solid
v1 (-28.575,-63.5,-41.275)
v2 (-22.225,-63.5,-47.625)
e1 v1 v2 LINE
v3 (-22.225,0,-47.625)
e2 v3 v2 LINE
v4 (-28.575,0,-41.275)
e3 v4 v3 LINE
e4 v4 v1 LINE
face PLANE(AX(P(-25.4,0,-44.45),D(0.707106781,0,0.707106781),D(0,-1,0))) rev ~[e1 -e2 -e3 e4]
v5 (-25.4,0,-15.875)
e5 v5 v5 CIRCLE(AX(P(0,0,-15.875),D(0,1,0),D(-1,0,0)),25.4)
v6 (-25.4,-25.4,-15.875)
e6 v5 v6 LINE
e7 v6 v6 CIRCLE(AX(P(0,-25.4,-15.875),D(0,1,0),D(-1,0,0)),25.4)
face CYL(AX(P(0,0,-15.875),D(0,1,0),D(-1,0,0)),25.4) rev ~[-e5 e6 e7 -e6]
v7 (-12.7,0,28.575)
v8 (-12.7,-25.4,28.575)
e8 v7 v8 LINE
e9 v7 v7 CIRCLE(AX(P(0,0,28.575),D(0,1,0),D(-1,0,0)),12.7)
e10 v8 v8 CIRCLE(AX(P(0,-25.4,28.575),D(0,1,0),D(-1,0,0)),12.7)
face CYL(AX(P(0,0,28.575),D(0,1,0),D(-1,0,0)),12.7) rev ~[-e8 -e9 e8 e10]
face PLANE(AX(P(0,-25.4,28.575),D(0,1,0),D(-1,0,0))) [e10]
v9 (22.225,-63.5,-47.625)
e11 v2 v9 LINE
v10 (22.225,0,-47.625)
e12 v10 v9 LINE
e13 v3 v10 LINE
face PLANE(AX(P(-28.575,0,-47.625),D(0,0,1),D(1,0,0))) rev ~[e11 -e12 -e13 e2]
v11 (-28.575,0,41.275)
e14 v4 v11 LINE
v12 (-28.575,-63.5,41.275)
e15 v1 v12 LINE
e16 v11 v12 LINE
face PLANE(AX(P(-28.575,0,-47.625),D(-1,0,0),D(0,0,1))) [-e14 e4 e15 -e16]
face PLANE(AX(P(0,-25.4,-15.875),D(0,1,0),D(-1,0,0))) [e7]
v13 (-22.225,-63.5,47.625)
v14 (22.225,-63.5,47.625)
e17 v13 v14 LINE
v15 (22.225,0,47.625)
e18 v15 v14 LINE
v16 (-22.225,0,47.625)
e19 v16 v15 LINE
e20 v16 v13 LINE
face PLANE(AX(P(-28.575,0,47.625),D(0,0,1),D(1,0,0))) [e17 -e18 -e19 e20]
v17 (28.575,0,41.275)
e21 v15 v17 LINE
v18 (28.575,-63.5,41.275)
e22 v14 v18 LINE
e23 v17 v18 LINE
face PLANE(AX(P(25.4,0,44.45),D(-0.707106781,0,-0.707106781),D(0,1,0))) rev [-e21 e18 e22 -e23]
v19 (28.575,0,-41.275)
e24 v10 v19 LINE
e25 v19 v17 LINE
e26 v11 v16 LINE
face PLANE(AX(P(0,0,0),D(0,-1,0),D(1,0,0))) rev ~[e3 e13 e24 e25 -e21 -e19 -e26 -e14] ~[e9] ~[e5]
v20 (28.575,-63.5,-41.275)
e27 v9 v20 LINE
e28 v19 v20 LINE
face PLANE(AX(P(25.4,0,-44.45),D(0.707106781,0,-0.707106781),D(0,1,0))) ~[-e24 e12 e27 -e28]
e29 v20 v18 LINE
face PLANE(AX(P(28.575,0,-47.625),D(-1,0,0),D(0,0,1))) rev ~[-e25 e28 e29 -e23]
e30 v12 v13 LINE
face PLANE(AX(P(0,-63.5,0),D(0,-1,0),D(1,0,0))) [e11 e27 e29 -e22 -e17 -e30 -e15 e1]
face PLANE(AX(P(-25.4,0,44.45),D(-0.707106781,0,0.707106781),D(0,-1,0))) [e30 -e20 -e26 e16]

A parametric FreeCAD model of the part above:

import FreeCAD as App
import Part
import Sketcher
Q = App.Units.Quantity


def edges_at(feature, points):
    """Names of the edges that pass closest to the given points."""
    edges = feature.Shape.Edges
    near = lambda p: min(range(len(edges)), key=lambda i: edges[i].distToShape(Part.Vertex(*p))[0])
    return sorted({f"Edge{near(p) + 1}" for p in points})

doc = App.newDocument("Part")
body = doc.addObject("PartDesign::Body", "Body")

sketch1 = doc.addObject("Sketcher::SketchObject", "Sketch")
body.addObject(sketch1)
sketch1.AttachmentSupport = (doc.XZ_Plane, [""])
sketch1.MapMode = "FlatFace"
sketch1.addGeometry([
    Part.LineSegment(App.Vector(-29, 48, 0), App.Vector(-29, -48, 0)),
    Part.LineSegment(App.Vector(-29, -48, 0), App.Vector(29, -48, 0)),
    Part.LineSegment(App.Vector(29, -48, 0), App.Vector(29, 48, 0)),
    Part.LineSegment(App.Vector(29, 48, 0), App.Vector(-29, 48, 0)),
], False)
sketch1.addConstraint([
    Sketcher.Constraint("Coincident", 0, 2, 1, 1),
    Sketcher.Constraint("Coincident", 1, 2, 2, 1),
    Sketcher.Constraint("Coincident", 2, 2, 3, 1),
    Sketcher.Constraint("Coincident", 3, 2, 0, 1),
    Sketcher.Constraint("Vertical", 0),
    Sketcher.Constraint("Horizontal", 1),
    Sketcher.Constraint("Vertical", 2),
    Sketcher.Constraint("Horizontal", 3),
    Sketcher.Constraint("Symmetric", 0, 2, 2, 2, -1, 1),
    Sketcher.Constraint("DistanceX", 1, 1, 1, 2, Q("2.25 in")),
    Sketcher.Constraint("DistanceY", 0, 2, 0, 1, Q("3.75 in")),
])
pad1 = doc.addObject("PartDesign::Pad", "Pad")
body.addObject(pad1)
pad1.Profile = sketch1
pad1.Length = Q("2.5 in")

sketch2 = doc.addObject("Sketcher::SketchObject", "Sketch001")
body.addObject(sketch2)
sketch2.AttachmentSupport = (doc.XZ_Plane, [""])
sketch2.MapMode = "FlatFace"
sketch2.addGeometry([
    Part.Circle(App.Vector(0, 29, 0), App.Vector(0, 0, 1), 13),
    Part.Circle(App.Vector(0, -16, 0), App.Vector(0, 0, 1), 25),
], False)
sketch2.addConstraint([
    Sketcher.Constraint("PointOnObject", 0, 3, -2),
    Sketcher.Constraint("PointOnObject", 1, 3, -2),
    Sketcher.Constraint("Diameter", 0, Q("1 in")),
    Sketcher.Constraint("Diameter", 1, Q("2 in")),
    Sketcher.Constraint("DistanceY", 1, 3, 0, 3, Q("1.75 in")),
    Sketcher.Constraint("DistanceY", -1, 1, 0, 3, Q("1.125 in")),
])
pocket1 = doc.addObject("PartDesign::Pocket", "Pocket")
body.addObject(pocket1)
pocket1.Profile = sketch2
pocket1.Length = Q("1 in")
pocket1.Reversed = True
doc.recompute()

chamfer = doc.addObject("PartDesign::Chamfer", "Chamfer")
body.addObject(chamfer)
chamfer.Base = (pocket1, edges_at(pocket1, [
    (-28.575, -31.75, 47.625),
    (28.575, -31.75, 47.625),
    (28.575, -31.75, -47.625),
    (-28.575, -31.75, -47.625),
]))
chamfer.Size = Q("0.25 in")

doc.recompute()
